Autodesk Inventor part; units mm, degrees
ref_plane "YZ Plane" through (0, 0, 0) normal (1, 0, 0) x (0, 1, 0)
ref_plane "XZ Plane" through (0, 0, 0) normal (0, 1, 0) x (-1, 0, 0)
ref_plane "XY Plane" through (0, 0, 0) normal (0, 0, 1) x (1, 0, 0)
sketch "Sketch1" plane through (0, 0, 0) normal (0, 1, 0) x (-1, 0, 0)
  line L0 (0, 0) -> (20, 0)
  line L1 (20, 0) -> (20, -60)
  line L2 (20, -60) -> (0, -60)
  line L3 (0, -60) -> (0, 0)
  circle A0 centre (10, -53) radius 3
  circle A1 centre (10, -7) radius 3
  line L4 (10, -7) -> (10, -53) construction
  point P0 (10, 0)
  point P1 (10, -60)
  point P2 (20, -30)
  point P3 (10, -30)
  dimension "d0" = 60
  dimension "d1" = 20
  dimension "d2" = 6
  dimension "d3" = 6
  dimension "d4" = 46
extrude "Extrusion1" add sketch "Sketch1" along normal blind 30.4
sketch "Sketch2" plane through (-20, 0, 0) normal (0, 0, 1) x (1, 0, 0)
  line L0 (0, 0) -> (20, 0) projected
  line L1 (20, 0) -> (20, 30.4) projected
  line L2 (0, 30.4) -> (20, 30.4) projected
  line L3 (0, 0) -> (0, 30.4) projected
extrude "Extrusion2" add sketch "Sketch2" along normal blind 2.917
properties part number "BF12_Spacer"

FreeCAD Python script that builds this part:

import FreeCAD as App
import Part
import Sketcher


def add_polygon(sketch, points):
    """Adds a closed chain of lines whose ends are joined by coincident constraints."""
    first, n = sketch.GeometryCount, len(points)
    for a, b in zip(points, points[1:] + points[:1]):
        sketch.addGeometry(Part.LineSegment(App.Vector(*a, 0), App.Vector(*b, 0)), False)
    for i in range(n):
        sketch.addConstraint(Sketcher.Constraint("Coincident", first + i, 2, first + (i + 1) % n, 1))

doc = App.newDocument("Part")
params = doc.addObject("Spreadsheet::Sheet", "Params")
for row, (alias, value) in enumerate([
    ("sketch1_diameter", "6 mm"),
    ("sketch1_width", "20 mm"),
    ("sketch1_height", "60 mm"),
    ("pad1_length", "30.4 mm"),
    ("sketch2_width", "20 mm"),
    ("sketch2_height", "30.4 mm"),
    ("pad2_length", "2.917 mm"),
], start=1):
    params.set(f"A{row}", alias)
    params.set(f"B{row}", "=" + value)
    params.setAlias(f"B{row}", alias)

body = doc.addObject("PartDesign::Body", "Body")

sketch1 = body.newObject("Sketcher::SketchObject", "Sketch")
sketch1.AttachmentSupport = (doc.getObject("XZ_Plane"), [""])
sketch1.MapMode = "FlatFace"
add_polygon(sketch1, [(-20, 0), (0, 0), (0, -60), (-20, -60)])
sketch1.addGeometry(Part.Circle(App.Vector(-10, -53, 0), App.Vector(0, 0, 1), 3), False)
sketch1.addGeometry(Part.Circle(App.Vector(-10, -7, 0), App.Vector(0, 0, 1), 3), False)
sketch1.addConstraint(Sketcher.Constraint("Horizontal", 0))
sketch1.addConstraint(Sketcher.Constraint("Vertical", 1))
sketch1.addConstraint(Sketcher.Constraint("Horizontal", 2))
sketch1.addConstraint(Sketcher.Constraint("Vertical", 3))
sketch1.addConstraint(Sketcher.Constraint("Coincident", 0, 2, -1, 1))
sketch1.addConstraint(Sketcher.Constraint("Equal", 4, 5))
sketch1.addConstraint(Sketcher.Constraint("Vertical", 4, 3, 5, 3))
sketch1.addConstraint(Sketcher.Constraint("Diameter", 4, 6.0))
sketch1.addConstraint(Sketcher.Constraint("DistanceX", 0, 1, 0, 2, 20.0))
sketch1.addConstraint(Sketcher.Constraint("DistanceY", 1, 2, 1, 1, 60.0))
sketch1.addConstraint(Sketcher.Constraint("DistanceY", 4, 3, 5, 3, 46.0))
sketch1.addConstraint(Sketcher.Constraint("DistanceX", 4, 3, -1, 1, 10.0))
sketch1.addConstraint(Sketcher.Constraint("DistanceY", 4, 3, -1, 1, 53.0))
sketch1.setExpression("Constraints[11]", "Params.sketch1_diameter")
sketch1.setExpression("Constraints[12]", "Params.sketch1_width")
sketch1.setExpression("Constraints[13]", "Params.sketch1_height")
pad1 = body.newObject("PartDesign::Pad", "Pad")
pad1.Profile = sketch1
pad1.setExpression("Length", "Params.pad1_length")
pad1.Reversed = True

sketch2 = body.newObject("Sketcher::SketchObject", "Sketch001")
sketch2.AttachmentSupport = (doc.getObject("XY_Plane"), [""])
sketch2.MapMode = "FlatFace"
add_polygon(sketch2, [(-20, 30), (-20, 0), (0, 0), (0, 30)])
sketch2.addConstraint(Sketcher.Constraint("Vertical", 0))
sketch2.addConstraint(Sketcher.Constraint("Horizontal", 1))
sketch2.addConstraint(Sketcher.Constraint("Vertical", 2))
sketch2.addConstraint(Sketcher.Constraint("Horizontal", 3))
sketch2.addConstraint(Sketcher.Constraint("Coincident", 1, 2, -1, 1))
sketch2.addConstraint(Sketcher.Constraint("DistanceX", 1, 1, 1, 2, 20.0))
sketch2.addConstraint(Sketcher.Constraint("DistanceY", 0, 2, 0, 1, 30.4))
sketch2.setExpression("Constraints[9]", "Params.sketch2_width")
sketch2.setExpression("Constraints[10]", "Params.sketch2_height")
pad2 = body.newObject("PartDesign::Pad", "Pad001")
pad2.Profile = sketch2
pad2.setExpression("Length", "Params.pad2_length")

doc.recompute()
